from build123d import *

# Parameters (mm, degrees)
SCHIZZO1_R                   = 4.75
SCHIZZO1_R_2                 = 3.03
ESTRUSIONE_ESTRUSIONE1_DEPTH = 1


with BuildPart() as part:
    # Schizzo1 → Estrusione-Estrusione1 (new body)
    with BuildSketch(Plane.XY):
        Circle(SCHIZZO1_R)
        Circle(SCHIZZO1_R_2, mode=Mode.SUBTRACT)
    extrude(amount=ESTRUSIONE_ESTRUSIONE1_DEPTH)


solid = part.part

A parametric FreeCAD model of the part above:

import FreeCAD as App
import Part
import Sketcher
Q = App.Units.Quantity

doc = App.newDocument("Part")
body = doc.addObject("PartDesign::Body", "Body")

# Sketch on XY plane
sketch1 = body.newObject("Sketcher::SketchObject", "Sketch")
sketch1.AttachmentSupport = (doc.getObject("XY_Plane"), [""])
sketch1.MapMode = "FlatFace"
sketch1.addGeometry([
    Part.Circle(App.Vector(0, 0, 0), App.Vector(0, 0, 1), 4.75),
    Part.Circle(App.Vector(0, 0, 0), App.Vector(0, 0, 1), 3.03),
], False)
sketch1.addConstraint([
    Sketcher.Constraint("Coincident", 0, 3, -1, 1),
    Sketcher.Constraint("Coincident", 1, 3, -1, 1),
    Sketcher.Constraint("Diameter", 0, Q("9.5 mm")),
    Sketcher.Constraint("Diameter", 1, Q("6.06 mm")),
])
pad1 = body.newObject("PartDesign::Pad", "Pad")
pad1.Profile = sketch1
pad1.Length = 1

doc.recompute()
